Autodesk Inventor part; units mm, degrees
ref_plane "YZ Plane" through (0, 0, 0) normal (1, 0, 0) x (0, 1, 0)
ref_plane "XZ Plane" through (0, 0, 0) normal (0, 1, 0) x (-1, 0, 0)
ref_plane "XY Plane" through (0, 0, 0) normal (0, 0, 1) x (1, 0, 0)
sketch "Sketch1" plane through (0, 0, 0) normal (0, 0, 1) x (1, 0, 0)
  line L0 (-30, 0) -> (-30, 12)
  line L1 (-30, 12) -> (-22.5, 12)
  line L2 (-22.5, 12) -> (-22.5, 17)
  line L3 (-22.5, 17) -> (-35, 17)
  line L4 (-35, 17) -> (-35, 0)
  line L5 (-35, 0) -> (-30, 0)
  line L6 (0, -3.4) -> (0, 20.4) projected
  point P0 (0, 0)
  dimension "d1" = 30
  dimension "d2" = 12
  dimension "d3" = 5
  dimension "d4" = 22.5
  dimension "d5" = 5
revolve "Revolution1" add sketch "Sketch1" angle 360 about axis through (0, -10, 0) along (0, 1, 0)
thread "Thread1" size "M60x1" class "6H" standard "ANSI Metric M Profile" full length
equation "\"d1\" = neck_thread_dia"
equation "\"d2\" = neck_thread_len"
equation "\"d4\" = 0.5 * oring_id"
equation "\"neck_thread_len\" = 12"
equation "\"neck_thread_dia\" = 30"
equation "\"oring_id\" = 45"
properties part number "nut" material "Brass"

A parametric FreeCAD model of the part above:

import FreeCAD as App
import Part
import Sketcher
from FreeCAD import Vector


def add_polygon(sketch, points):
    """Adds a closed chain of lines whose ends are joined by coincident constraints."""
    first, n = sketch.GeometryCount, len(points)
    for a, b in zip(points, points[1:] + points[:1]):
        sketch.addGeometry(Part.LineSegment(App.Vector(*a, 0), App.Vector(*b, 0)), False)
    for i in range(n):
        sketch.addConstraint(Sketcher.Constraint("Coincident", first + i, 2, first + (i + 1) % n, 1))

doc = App.newDocument("Part")
body = doc.addObject("PartDesign::Body", "Body")

sketch1 = body.newObject("Sketcher::SketchObject", "Sketch")
sketch1.AttachmentSupport = (doc.getObject("XY_Plane"), [""])
sketch1.MapMode = "FlatFace"
add_polygon(sketch1, [(-35, 0), (-30, 0), (-30, 12), (-22, 12), (-22, 17), (-35, 17)])
sketch1.addConstraint(Sketcher.Constraint("Horizontal", 0))
sketch1.addConstraint(Sketcher.Constraint("Vertical", 1))
sketch1.addConstraint(Sketcher.Constraint("Horizontal", 2))
sketch1.addConstraint(Sketcher.Constraint("Vertical", 3))
sketch1.addConstraint(Sketcher.Constraint("Horizontal", 4))
sketch1.addConstraint(Sketcher.Constraint("Vertical", 5))
sketch1.addConstraint(Sketcher.Constraint("PointOnObject", 0, 2, -1))
sketch1.addConstraint(Sketcher.Constraint("Equal", 0, 3))
sketch1.addConstraint(Sketcher.Constraint("DistanceX", 0, 1, 0, 2, 5.0))
sketch1.addConstraint(Sketcher.Constraint("DistanceY", 1, 1, 1, 2, 12.0))
sketch1.addConstraint(Sketcher.Constraint("DistanceX", 0, 2, -1, 1, 30.0))
sketch1.addConstraint(Sketcher.Constraint("DistanceX", 2, 2, -1, 1, 22.5))
revolution = body.newObject("PartDesign::Revolution", "Revolution")
revolution.Profile = sketch1
revolution.ReferenceAxis = (sketch1, ["V_Axis"])
revolution.Angle = 360

doc.recompute()
